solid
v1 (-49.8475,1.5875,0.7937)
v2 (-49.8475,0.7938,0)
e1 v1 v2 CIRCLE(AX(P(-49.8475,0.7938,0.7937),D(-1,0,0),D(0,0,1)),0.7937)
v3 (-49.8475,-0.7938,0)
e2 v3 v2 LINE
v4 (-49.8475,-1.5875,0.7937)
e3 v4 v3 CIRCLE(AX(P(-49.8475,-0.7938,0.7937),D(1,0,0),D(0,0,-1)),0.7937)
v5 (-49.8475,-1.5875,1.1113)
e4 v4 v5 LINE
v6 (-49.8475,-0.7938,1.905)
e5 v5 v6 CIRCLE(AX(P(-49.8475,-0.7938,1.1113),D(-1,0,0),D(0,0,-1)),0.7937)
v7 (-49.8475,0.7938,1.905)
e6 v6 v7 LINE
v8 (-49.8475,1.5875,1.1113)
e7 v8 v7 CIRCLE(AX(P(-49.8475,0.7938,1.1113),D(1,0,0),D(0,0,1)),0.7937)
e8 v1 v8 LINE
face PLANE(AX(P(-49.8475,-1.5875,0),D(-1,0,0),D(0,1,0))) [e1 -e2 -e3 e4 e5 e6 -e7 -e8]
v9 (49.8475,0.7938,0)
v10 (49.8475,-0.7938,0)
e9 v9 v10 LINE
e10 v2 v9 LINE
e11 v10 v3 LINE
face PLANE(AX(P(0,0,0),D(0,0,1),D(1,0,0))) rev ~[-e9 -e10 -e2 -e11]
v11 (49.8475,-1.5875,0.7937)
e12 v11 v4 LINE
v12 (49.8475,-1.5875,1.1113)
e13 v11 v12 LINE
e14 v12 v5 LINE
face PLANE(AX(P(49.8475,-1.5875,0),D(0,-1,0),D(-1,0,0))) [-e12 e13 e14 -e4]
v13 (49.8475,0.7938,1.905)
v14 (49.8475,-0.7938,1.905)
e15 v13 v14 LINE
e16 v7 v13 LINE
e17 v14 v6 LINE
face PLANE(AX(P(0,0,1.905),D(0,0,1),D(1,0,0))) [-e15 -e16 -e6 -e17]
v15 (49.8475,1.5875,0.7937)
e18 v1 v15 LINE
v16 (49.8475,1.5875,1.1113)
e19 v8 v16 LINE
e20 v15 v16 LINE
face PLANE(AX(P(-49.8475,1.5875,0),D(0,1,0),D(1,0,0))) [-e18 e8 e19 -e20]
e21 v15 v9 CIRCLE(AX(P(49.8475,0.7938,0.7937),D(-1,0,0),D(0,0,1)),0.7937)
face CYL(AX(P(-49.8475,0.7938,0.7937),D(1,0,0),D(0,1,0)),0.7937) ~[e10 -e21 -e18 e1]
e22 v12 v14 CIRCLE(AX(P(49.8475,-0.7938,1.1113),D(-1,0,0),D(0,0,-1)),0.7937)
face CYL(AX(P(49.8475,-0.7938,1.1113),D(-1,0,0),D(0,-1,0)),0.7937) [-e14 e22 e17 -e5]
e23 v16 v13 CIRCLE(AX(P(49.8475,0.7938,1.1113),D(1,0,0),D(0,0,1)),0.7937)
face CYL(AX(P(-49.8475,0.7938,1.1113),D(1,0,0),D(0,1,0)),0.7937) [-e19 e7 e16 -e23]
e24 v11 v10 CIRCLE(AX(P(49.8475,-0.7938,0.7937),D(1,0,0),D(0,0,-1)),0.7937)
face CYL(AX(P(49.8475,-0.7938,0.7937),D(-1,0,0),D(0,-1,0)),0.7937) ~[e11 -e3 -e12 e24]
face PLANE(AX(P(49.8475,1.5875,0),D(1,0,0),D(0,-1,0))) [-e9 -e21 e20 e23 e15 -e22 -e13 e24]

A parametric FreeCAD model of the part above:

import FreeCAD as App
import Part
import Sketcher
Q = App.Units.Quantity


def edges_at(feature, points):
    """Names of the edges that pass closest to the given points."""
    edges = feature.Shape.Edges
    near = lambda p: min(range(len(edges)), key=lambda i: edges[i].distToShape(Part.Vertex(*p))[0])
    return sorted({f"Edge{near(p) + 1}" for p in points})


def add_polygon(sketch, points):
    """Adds a closed chain of lines whose ends are joined by coincident constraints."""
    first, n = sketch.GeometryCount, len(points)
    for a, b in zip(points, points[1:] + points[:1]):
        sketch.addGeometry(Part.LineSegment(App.Vector(*a, 0), App.Vector(*b, 0)), False)
    for i in range(n):
        sketch.addConstraint(Sketcher.Constraint("Coincident", first + i, 2, first + (i + 1) % n, 1))

doc = App.newDocument("Part")
body = doc.addObject("PartDesign::Body", "Body")

# Sketch on XY plane
sketch1 = body.newObject("Sketcher::SketchObject", "Sketch")
sketch1.AttachmentSupport = (doc.getObject("XY_Plane"), [""])
sketch1.MapMode = "FlatFace"
add_polygon(sketch1, [(-49.8475, -1.5875), (49.8475, -1.5875), (49.8475, 1.5875), (-49.8475, 1.5875)])  # lines 0-3
sketch1.addConstraint([
    Sketcher.Constraint("Horizontal", 0),
    Sketcher.Constraint("Vertical", 1),
    Sketcher.Constraint("Horizontal", 2),
    Sketcher.Constraint("Vertical", 3),
    Sketcher.Constraint("Symmetric", 0, 2, 2, 2, -1, 1),
    Sketcher.Constraint("DistanceX", 0, 1, 0, 2, Q("3.925 in")),
    Sketcher.Constraint("DistanceY", 1, 1, 1, 2, Q("0.125 in")),
])
pad1 = body.newObject("PartDesign::Pad", "Pad")
pad1.Profile = sketch1
pad1.Length = Q("0.075 in")
doc.recompute()

fillet = body.newObject("PartDesign::Fillet", "Fillet")
fillet.Base = (pad1, edges_at(pad1, [
    (0, 1.587, 1.905),
    (0, -1.587, 1.905),
    (0, 1.587, 0),
    (0, -1.587, 0),
]))
fillet.Radius = Q("0.031248 in")

doc.recompute()
